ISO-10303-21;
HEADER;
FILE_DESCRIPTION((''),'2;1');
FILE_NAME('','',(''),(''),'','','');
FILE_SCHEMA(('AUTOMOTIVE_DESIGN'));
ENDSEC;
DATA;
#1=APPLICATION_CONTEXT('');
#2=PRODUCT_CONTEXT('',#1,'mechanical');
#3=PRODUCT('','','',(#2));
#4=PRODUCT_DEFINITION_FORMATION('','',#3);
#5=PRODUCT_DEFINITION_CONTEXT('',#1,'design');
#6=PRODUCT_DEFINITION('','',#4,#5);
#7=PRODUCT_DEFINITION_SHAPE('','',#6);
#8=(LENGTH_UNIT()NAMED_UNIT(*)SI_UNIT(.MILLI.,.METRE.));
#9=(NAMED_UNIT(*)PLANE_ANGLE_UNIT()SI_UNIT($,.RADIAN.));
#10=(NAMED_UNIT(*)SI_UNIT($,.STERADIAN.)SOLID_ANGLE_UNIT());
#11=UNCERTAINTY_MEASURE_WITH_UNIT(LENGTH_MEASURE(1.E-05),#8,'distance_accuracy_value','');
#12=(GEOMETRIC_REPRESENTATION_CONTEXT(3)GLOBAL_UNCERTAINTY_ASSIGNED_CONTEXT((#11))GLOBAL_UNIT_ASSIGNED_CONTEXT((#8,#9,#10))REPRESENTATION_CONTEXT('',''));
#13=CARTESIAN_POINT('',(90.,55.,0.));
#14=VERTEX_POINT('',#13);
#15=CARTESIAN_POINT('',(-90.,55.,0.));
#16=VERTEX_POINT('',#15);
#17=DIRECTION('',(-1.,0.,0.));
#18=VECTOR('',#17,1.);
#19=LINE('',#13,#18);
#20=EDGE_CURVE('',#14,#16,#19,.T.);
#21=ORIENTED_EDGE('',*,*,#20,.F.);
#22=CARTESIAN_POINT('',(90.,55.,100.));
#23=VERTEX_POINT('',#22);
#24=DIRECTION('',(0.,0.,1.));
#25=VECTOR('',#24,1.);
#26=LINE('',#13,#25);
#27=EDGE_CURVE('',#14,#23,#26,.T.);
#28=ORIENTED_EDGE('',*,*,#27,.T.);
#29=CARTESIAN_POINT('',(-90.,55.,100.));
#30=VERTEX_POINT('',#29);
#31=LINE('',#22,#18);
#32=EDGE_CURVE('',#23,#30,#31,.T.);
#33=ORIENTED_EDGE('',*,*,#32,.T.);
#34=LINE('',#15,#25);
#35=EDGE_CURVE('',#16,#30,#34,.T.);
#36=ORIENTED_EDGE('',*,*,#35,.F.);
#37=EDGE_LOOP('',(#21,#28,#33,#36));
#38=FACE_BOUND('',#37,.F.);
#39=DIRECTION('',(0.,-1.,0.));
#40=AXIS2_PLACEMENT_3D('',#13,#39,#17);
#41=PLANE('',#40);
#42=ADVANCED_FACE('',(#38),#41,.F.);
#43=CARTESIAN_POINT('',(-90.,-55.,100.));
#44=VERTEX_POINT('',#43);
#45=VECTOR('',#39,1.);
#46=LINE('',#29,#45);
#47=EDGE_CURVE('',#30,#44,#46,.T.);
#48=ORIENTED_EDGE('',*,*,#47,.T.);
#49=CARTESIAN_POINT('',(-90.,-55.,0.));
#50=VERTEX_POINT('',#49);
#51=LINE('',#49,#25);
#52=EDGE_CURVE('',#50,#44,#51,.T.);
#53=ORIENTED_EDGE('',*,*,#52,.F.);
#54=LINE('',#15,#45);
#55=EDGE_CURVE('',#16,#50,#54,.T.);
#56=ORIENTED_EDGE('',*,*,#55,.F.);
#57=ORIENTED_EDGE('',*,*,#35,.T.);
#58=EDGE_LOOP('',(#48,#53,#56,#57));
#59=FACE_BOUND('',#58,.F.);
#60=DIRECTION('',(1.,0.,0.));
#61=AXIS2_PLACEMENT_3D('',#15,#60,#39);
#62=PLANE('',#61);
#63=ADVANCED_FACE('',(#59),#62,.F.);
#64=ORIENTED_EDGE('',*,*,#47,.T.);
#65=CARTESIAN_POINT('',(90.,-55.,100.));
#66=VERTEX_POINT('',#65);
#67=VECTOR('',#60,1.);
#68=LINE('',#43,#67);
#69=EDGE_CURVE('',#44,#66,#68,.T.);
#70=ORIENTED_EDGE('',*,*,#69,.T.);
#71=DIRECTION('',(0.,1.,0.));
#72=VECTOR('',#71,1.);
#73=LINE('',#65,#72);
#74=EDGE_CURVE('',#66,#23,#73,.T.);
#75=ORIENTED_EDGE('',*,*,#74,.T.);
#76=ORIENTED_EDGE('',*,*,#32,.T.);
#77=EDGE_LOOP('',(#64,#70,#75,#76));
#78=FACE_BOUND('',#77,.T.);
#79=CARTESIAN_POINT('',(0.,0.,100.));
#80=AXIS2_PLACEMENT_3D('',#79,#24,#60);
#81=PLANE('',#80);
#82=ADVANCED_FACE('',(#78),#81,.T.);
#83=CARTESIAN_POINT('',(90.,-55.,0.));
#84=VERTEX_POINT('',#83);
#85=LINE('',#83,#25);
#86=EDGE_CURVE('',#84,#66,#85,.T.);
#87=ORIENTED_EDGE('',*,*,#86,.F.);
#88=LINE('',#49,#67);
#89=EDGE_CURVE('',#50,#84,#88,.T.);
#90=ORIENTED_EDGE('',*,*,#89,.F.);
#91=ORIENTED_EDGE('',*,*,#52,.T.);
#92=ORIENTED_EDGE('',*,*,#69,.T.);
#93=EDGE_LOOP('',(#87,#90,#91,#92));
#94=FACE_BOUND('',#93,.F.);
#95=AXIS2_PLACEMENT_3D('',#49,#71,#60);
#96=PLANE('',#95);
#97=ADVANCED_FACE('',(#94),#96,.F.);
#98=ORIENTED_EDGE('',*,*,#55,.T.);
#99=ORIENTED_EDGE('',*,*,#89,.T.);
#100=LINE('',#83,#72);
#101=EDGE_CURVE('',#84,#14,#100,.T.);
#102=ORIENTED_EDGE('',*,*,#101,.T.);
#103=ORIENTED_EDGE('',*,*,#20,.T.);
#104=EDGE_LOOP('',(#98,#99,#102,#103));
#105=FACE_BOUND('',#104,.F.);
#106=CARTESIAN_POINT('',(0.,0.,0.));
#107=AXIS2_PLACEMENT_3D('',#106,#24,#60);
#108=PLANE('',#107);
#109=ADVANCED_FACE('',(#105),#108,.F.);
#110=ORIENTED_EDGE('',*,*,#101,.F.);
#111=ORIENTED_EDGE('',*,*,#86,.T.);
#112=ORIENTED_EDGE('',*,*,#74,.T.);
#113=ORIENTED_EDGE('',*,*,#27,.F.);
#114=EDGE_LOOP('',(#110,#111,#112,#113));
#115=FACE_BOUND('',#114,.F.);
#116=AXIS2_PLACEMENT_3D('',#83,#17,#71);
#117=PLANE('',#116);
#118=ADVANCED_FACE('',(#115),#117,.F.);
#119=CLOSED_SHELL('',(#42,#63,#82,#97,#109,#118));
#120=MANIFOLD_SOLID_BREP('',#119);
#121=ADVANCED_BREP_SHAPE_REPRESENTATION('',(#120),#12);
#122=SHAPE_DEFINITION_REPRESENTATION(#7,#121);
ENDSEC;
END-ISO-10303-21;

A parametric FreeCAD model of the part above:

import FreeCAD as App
import Part
import Sketcher
from FreeCAD import Vector
Q = App.Units.Quantity

doc = App.newDocument("Part")
body = doc.addObject("PartDesign::Body", "Body")

# Sketch on XY plane
sketch1 = doc.addObject("Sketcher::SketchObject", "Sketch")
body.addObject(sketch1)
sketch1.AttachmentSupport = (doc.XY_Plane, [""])
sketch1.MapMode = "FlatFace"
sketch1.addGeometry(Part.LineSegment(Vector(-90, 55, 0), Vector(-90, -55, 0)), False)
sketch1.addGeometry(Part.LineSegment(Vector(-90, -55, 0), Vector(90, -55, 0)), False)
sketch1.addGeometry(Part.LineSegment(Vector(90, -55, 0), Vector(90, 55, 0)), False)
sketch1.addGeometry(Part.LineSegment(Vector(90, 55, 0), Vector(-90, 55, 0)), False)
sketch1.addConstraint(Sketcher.Constraint("Coincident", 0, 2, 1, 1))
sketch1.addConstraint(Sketcher.Constraint("Coincident", 1, 2, 2, 1))
sketch1.addConstraint(Sketcher.Constraint("Coincident", 2, 2, 3, 1))
sketch1.addConstraint(Sketcher.Constraint("Coincident", 3, 2, 0, 1))
sketch1.addConstraint(Sketcher.Constraint("Vertical", 0))
sketch1.addConstraint(Sketcher.Constraint("Horizontal", 1))
sketch1.addConstraint(Sketcher.Constraint("Vertical", 2))
sketch1.addConstraint(Sketcher.Constraint("Horizontal", 3))
sketch1.addConstraint(Sketcher.Constraint("Symmetric", 0, 2, 2, 2, -1, 1))
sketch1.addConstraint(Sketcher.Constraint("DistanceX", 1, 1, 1, 2, Q("180 mm")))
sketch1.addConstraint(Sketcher.Constraint("DistanceY", 0, 2, 0, 1, Q("110 mm")))
pad1 = doc.addObject("PartDesign::Pad", "Pad")
body.addObject(pad1)
pad1.Profile = sketch1
pad1.Length = 100

doc.recompute()
